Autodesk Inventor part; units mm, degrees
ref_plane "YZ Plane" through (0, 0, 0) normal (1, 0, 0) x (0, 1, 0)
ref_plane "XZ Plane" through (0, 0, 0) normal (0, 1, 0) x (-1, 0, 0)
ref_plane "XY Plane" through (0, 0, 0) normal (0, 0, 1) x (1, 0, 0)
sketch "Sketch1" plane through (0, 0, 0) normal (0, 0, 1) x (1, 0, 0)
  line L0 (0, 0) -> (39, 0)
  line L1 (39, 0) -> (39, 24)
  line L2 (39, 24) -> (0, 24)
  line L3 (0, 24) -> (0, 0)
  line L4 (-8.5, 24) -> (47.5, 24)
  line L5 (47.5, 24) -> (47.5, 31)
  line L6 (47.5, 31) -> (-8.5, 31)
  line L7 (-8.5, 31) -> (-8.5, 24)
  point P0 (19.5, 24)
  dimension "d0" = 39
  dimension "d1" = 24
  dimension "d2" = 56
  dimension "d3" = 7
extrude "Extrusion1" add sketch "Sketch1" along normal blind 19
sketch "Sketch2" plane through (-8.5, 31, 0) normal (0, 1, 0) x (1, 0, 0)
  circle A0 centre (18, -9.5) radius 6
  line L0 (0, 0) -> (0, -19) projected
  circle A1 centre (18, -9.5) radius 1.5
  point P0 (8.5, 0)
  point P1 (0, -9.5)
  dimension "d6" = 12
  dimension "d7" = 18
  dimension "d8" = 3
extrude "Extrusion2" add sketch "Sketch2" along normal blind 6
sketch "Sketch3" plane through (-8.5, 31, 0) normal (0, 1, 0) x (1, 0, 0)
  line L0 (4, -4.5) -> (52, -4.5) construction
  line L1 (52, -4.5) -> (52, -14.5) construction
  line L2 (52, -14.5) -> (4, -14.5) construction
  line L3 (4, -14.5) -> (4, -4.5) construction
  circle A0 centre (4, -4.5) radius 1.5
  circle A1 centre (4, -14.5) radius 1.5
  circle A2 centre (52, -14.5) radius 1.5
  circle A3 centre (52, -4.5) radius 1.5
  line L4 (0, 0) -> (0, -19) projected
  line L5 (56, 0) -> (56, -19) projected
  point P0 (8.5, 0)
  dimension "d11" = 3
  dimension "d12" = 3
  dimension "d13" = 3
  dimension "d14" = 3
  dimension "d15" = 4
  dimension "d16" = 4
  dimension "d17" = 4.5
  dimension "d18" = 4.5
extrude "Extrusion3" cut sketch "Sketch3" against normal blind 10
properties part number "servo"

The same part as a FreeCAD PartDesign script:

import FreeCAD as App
import Part
import Sketcher
from FreeCAD import Vector
Q = App.Units.Quantity

doc = App.newDocument("Part")
body = doc.addObject("PartDesign::Body", "Body")

sketch1 = body.newObject("Sketcher::SketchObject", "Sketch")
sketch1.AttachmentSupport = (doc.getObject("XY_Plane"), [""])
sketch1.MapMode = "FlatFace"
sketch1.addGeometry([
    Part.LineSegment(Vector(0, 24, 0), Vector(0, 0, 0)),
    Part.LineSegment(Vector(0, 0, 0), Vector(39, 0, 0)),
    Part.LineSegment(Vector(39, 0, 0), Vector(39, 24, 0)),
    Part.LineSegment(Vector(39, 24, 0), Vector(48, 24, 0)),
    Part.LineSegment(Vector(48, 24, 0), Vector(48, 31, 0)),
    Part.LineSegment(Vector(48, 31, 0), Vector(-8, 31, 0)),
    Part.LineSegment(Vector(-8, 31, 0), Vector(-8, 24, 0)),
    Part.LineSegment(Vector(-8, 24, 0), Vector(0, 24, 0)),
], False)
sketch1.addConstraint([
    Sketcher.Constraint("Coincident", 0, 2, 1, 1),
    Sketcher.Constraint("Coincident", 1, 2, 2, 1),
    Sketcher.Constraint("Coincident", 2, 2, 3, 1),
    Sketcher.Constraint("Coincident", 3, 2, 4, 1),
    Sketcher.Constraint("Coincident", 4, 2, 5, 1),
    Sketcher.Constraint("Coincident", 5, 2, 6, 1),
    Sketcher.Constraint("Coincident", 6, 2, 7, 1),
    Sketcher.Constraint("Coincident", 7, 2, 0, 1),
    Sketcher.Constraint("Vertical", 0),
    Sketcher.Constraint("Horizontal", 1),
    Sketcher.Constraint("Vertical", 2),
    Sketcher.Constraint("Horizontal", 3),
    Sketcher.Constraint("Vertical", 4),
    Sketcher.Constraint("Horizontal", 5),
    Sketcher.Constraint("Vertical", 6),
    Sketcher.Constraint("Horizontal", 7),
    Sketcher.Constraint("Coincident", 0, 2, -1, 1),
    Sketcher.Constraint("Horizontal", 3, 2, 6, 2),
    Sketcher.Constraint("Equal", 3, 7),
    Sketcher.Constraint("DistanceX", 1, 1, 1, 2, Q("39 mm")),
    Sketcher.Constraint("DistanceX", 5, 2, 5, 1, Q("56 mm")),
    Sketcher.Constraint("DistanceY", 0, 2, 0, 1, Q("24 mm")),
    Sketcher.Constraint("DistanceY", 4, 1, 4, 2, Q("7 mm")),
])
pad1 = body.newObject("PartDesign::Pad", "Pad")
pad1.Profile = sketch1
pad1.Length = 19

sketch2 = body.newObject("Sketcher::SketchObject", "Sketch001")
sketch2.AttachmentSupport = (doc.getObject("XZ_Plane"), [""])
sketch2.MapMode = "FlatFace"
sketch2.AttachmentOffset = App.Placement(Vector(0, 0, -31), App.Rotation())
sketch2.addGeometry([
    Part.Circle(Vector(9.5, 9.5, 0), Vector(0, 0, 1), 6),
    Part.Circle(Vector(9.5, 9.5, 0), Vector(0, 0, 1), 1.5),
], False)
sketch2.addConstraint([
    Sketcher.Constraint("Coincident", 1, 3, 0, 3),
    Sketcher.Constraint("Diameter", 0, Q("12 mm")),
    Sketcher.Constraint("Diameter", 1, Q("3 mm")),
    Sketcher.Constraint("DistanceX", -1, 1, 0, 3, Q("9.5 mm")),
    Sketcher.Constraint("DistanceY", -1, 1, 0, 3, Q("9.5 mm")),
])
pad2 = body.newObject("PartDesign::Pad", "Pad001")
pad2.Profile = sketch2
pad2.Length = 6
pad2.Reversed = True

sketch3 = body.newObject("Sketcher::SketchObject", "Sketch002")
sketch3.AttachmentSupport = (doc.getObject("XZ_Plane"), [""])
sketch3.MapMode = "FlatFace"
sketch3.AttachmentOffset = App.Placement(Vector(0, 0, -31), App.Rotation())
sketch3.addGeometry([
    Part.Circle(Vector(-4.5, 4.5, 0), Vector(0, 0, 1), 1.5),
    Part.Circle(Vector(-4.5, 14.5, 0), Vector(0, 0, 1), 1.5),
    Part.Circle(Vector(43.5, 14.5, 0), Vector(0, 0, 1), 1.5),
    Part.Circle(Vector(43.5, 4.5, 0), Vector(0, 0, 1), 1.5),
], False)
sketch3.addConstraint([
    Sketcher.Constraint("Equal", 0, 1),
    Sketcher.Constraint("Equal", 1, 2),
    Sketcher.Constraint("Equal", 2, 3),
    Sketcher.Constraint("Horizontal", 1, 3, 2, 3),
    Sketcher.Constraint("Horizontal", 0, 3, 3, 3),
    Sketcher.Constraint("Vertical", 0, 3, 1, 3),
    Sketcher.Constraint("Vertical", 2, 3, 3, 3),
    Sketcher.Constraint("Diameter", 0, Q("3 mm")),
    Sketcher.Constraint("DistanceX", 0, 3, -1, 1, Q("4.5 mm")),
    Sketcher.Constraint("DistanceY", -1, 1, 0, 3, Q("4.5 mm")),
    Sketcher.Constraint("DistanceY", 0, 3, 1, 3, Q("10 mm")),
    Sketcher.Constraint("DistanceX", 1, 3, 2, 3, Q("48 mm")),
])
pocket1 = body.newObject("PartDesign::Pocket", "Pocket")
pocket1.Profile = sketch3
pocket1.Length = 10
pocket1.Reversed = True

doc.recompute()
